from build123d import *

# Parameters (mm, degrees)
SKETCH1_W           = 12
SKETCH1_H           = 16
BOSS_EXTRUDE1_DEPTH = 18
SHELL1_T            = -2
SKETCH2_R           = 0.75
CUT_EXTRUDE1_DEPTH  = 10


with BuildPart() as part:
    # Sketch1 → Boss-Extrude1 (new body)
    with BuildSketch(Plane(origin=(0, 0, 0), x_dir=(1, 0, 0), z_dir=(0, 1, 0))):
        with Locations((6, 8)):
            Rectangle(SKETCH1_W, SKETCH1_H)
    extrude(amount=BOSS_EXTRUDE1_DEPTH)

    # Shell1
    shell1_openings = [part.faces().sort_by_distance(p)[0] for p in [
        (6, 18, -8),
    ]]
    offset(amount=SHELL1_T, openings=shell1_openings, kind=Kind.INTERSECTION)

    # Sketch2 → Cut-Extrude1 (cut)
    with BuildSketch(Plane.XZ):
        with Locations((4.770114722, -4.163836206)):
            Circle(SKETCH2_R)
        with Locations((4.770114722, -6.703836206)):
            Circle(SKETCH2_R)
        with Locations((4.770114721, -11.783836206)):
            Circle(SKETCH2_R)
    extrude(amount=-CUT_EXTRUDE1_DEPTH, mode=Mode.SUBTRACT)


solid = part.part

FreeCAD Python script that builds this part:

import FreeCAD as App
import Part
import Sketcher

V = App.Vector
Q = App.Units.Quantity


def faces_at(feature, points):
    """Names of the faces that lie closest to the given points."""
    faces = feature.Shape.Faces
    near = lambda p: min(range(len(faces)), key=lambda i: faces[i].distToShape(Part.Vertex(*p))[0])
    return sorted({f"Face{near(p) + 1}" for p in points})

doc = App.newDocument("Part")
body = doc.addObject("PartDesign::Body", "Body")

sketch1 = body.newObject("Sketcher::SketchObject", "Sketch")
sketch1.AttachmentSupport = (doc.getObject("XZ_Plane"), [""])
sketch1.MapMode = "FlatFace"
sketch1.addGeometry([
    Part.LineSegment(V(0, -16, 0), V(0, 0, 0)),
    Part.LineSegment(V(0, 0, 0), V(12, 0, 0)),
    Part.LineSegment(V(12, 0, 0), V(12, -16, 0)),
    Part.LineSegment(V(12, -16, 0), V(0, -16, 0)),
], False)
sketch1.addConstraint([
    Sketcher.Constraint("Coincident", 0, 2, 1, 1),
    Sketcher.Constraint("Coincident", 1, 2, 2, 1),
    Sketcher.Constraint("Coincident", 2, 2, 3, 1),
    Sketcher.Constraint("Coincident", 3, 2, 0, 1),
    Sketcher.Constraint("Vertical", 0),
    Sketcher.Constraint("Horizontal", 1),
    Sketcher.Constraint("Vertical", 2),
    Sketcher.Constraint("Horizontal", 3),
    Sketcher.Constraint("Coincident", 0, 2, -1, 1),
    Sketcher.Constraint("DistanceX", 1, 1, 1, 2, Q("12 mm")),
    Sketcher.Constraint("DistanceY", 0, 1, 0, 2, Q("16 mm")),
])
pad1 = body.newObject("PartDesign::Pad", "Pad")
pad1.Profile = sketch1
pad1.Length = 18
pad1.Reversed = True
doc.recompute()

thickness = body.newObject("PartDesign::Thickness", "Thickness")
thickness.Base = (pad1, faces_at(pad1, [(6, 18, -8)]))
thickness.Value = 2
thickness.Reversed = True
thickness.Join = "Intersection"

sketch2 = body.newObject("Sketcher::SketchObject", "Sketch001")
sketch2.AttachmentSupport = (doc.getObject("XZ_Plane"), [""])
sketch2.MapMode = "FlatFace"
sketch2.addGeometry([
    Part.Circle(V(4.770115, -4.163836, 0), V(0, 0, 1), 0.75),
    Part.Circle(V(4.770115, -6.703836, 0), V(0, 0, 1), 0.75),
    Part.Circle(V(4.770115, -11.783836, 0), V(0, 0, 1), 0.75),
], False)
sketch2.addConstraint([
    Sketcher.Constraint("Equal", 0, 1),
    Sketcher.Constraint("Equal", 1, 2),
    Sketcher.Constraint("Vertical", 0, 3, 1, 3),
    Sketcher.Constraint("Vertical", 1, 3, 2, 3),
    Sketcher.Constraint("Diameter", 0, Q("1.5 mm")),
    Sketcher.Constraint("DistanceY", 1, 3, 0, 3, Q("2.54 mm")),
    Sketcher.Constraint("DistanceY", 2, 3, 1, 3, Q("5.08 mm")),
    Sketcher.Constraint("DistanceX", -1, 1, 0, 3, Q("4.770115 mm")),
    Sketcher.Constraint("DistanceY", 0, 3, -1, 1, Q("4.163836 mm")),
])
pocket1 = body.newObject("PartDesign::Pocket", "Pocket")
pocket1.Profile = sketch2
pocket1.Length = 10

doc.recompute()
